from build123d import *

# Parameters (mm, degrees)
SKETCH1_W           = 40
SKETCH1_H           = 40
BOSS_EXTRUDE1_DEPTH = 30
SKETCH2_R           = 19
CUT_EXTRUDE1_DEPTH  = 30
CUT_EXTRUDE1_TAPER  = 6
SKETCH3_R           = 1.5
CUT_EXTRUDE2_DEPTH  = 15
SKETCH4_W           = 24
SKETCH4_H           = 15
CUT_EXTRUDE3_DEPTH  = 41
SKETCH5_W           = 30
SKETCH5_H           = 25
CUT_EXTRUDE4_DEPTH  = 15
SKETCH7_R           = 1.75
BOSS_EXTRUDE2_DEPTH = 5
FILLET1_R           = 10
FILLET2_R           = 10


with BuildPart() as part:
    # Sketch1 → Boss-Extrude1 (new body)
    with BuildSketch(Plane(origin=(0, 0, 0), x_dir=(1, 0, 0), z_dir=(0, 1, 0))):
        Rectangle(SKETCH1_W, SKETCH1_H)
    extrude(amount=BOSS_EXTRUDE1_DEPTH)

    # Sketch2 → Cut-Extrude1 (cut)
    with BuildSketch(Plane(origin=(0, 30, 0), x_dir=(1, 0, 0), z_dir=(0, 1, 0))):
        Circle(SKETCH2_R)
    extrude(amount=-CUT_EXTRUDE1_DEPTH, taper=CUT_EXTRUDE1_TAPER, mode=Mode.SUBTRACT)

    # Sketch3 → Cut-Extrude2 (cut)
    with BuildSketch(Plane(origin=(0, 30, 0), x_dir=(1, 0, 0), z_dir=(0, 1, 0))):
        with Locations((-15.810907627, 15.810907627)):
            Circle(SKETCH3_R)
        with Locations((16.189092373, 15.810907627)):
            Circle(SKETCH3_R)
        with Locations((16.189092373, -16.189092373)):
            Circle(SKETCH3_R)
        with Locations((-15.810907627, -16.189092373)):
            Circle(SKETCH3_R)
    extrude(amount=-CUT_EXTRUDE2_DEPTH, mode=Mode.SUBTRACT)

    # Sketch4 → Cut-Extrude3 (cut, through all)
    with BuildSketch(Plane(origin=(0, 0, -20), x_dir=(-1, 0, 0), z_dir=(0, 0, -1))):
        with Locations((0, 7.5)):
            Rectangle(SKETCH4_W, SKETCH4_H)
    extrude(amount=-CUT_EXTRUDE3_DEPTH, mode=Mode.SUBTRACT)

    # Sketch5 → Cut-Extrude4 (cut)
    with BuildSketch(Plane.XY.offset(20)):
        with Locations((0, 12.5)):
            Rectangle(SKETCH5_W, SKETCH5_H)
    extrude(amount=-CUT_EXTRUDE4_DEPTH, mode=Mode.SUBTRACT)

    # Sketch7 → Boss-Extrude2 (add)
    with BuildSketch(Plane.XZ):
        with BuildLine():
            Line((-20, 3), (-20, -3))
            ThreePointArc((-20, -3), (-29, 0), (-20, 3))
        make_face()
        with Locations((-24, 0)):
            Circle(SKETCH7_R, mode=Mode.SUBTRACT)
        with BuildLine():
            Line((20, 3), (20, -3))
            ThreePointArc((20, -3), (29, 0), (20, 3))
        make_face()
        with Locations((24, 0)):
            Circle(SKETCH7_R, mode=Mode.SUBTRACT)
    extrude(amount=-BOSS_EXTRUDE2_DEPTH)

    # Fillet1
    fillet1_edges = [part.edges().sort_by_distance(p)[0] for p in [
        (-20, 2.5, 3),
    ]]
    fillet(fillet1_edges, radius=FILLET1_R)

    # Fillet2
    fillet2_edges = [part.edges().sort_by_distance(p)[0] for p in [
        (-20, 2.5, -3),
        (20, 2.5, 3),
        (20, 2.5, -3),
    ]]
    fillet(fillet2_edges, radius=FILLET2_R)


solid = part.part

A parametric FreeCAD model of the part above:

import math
import FreeCAD as App
import Part
import Sketcher

V = App.Vector


def edges_at(feature, points):
    """Names of the edges that pass closest to the given points."""
    edges = feature.Shape.Edges
    near = lambda p: min(range(len(edges)), key=lambda i: edges[i].distToShape(Part.Vertex(*p))[0])
    return sorted({f"Edge{near(p) + 1}" for p in points})


def add_polygon(sketch, points):
    """Adds a closed chain of lines whose ends are joined by coincident constraints."""
    first, n = sketch.GeometryCount, len(points)
    for a, b in zip(points, points[1:] + points[:1]):
        sketch.addGeometry(Part.LineSegment(App.Vector(*a, 0), App.Vector(*b, 0)), False)
    for i in range(n):
        sketch.addConstraint(Sketcher.Constraint("Coincident", first + i, 2, first + (i + 1) % n, 1))

doc = App.newDocument("Part")
body = doc.addObject("PartDesign::Body", "Body")

# Sketch on XZ plane
sketch1 = body.newObject("Sketcher::SketchObject", "Sketch")
sketch1.AttachmentSupport = (doc.getObject("XZ_Plane"), [""])
sketch1.MapMode = "FlatFace"
add_polygon(sketch1, [(-20, -20), (-20, 20), (20, 20), (20, -20)])  # lines 0-3
sketch1.addConstraint(Sketcher.Constraint("Vertical", 0))
sketch1.addConstraint(Sketcher.Constraint("Horizontal", 1))
sketch1.addConstraint(Sketcher.Constraint("Vertical", 2))
sketch1.addConstraint(Sketcher.Constraint("Horizontal", 3))
sketch1.addConstraint(Sketcher.Constraint("Symmetric", 0, 2, 2, 2, -1, 1))
sketch1.addConstraint(Sketcher.Constraint("Equal", 3, 0))
sketch1.addConstraint(Sketcher.Constraint("DistanceX", 1, 1, 1, 2, 40.0))
pad1 = body.newObject("PartDesign::Pad", "Pad")
pad1.Profile = sketch1
pad1.Length = 30
pad1.Reversed = True

# Sketch on XZ plane
sketch2 = body.newObject("Sketcher::SketchObject", "Sketch001")
sketch2.AttachmentSupport = (doc.getObject("XZ_Plane"), [""])
sketch2.MapMode = "FlatFace"
sketch2.AttachmentOffset = App.Placement(V(0, 0, -30), App.Rotation())
sketch2.addGeometry(Part.Circle(V(0, 0, 0), V(0, 0, 1), 19), False)
sketch2.addConstraint(Sketcher.Constraint("Coincident", 0, 3, -1, 1))
sketch2.addConstraint(Sketcher.Constraint("Diameter", 0, 38.0))
pocket1 = body.newObject("PartDesign::Pocket", "Pocket")
pocket1.Profile = sketch2
pocket1.Length = 30
pocket1.Reversed = True
pocket1.TaperAngle = -6

# Sketch on XZ plane
sketch3 = body.newObject("Sketcher::SketchObject", "Sketch002")
sketch3.AttachmentSupport = (doc.getObject("XZ_Plane"), [""])
sketch3.MapMode = "FlatFace"
sketch3.AttachmentOffset = App.Placement(V(0, 0, -30), App.Rotation())
sketch3.addGeometry(Part.Circle(V(-15.8, -15.8, 0), V(0, 0, 1), 1.5), False)
sketch3.addGeometry(Part.Circle(V(16.2, -15.8, 0), V(0, 0, 1), 1.5), False)
sketch3.addGeometry(Part.Circle(V(16.2, 16.2, 0), V(0, 0, 1), 1.5), False)
sketch3.addGeometry(Part.Circle(V(-15.8, 16.2, 0), V(0, 0, 1), 1.5), False)
sketch3.addConstraint(Sketcher.Constraint("Equal", 0, 1))
sketch3.addConstraint(Sketcher.Constraint("Equal", 1, 2))
sketch3.addConstraint(Sketcher.Constraint("Equal", 2, 3))
sketch3.addConstraint(Sketcher.Constraint("Horizontal", 0, 3, 1, 3))
sketch3.addConstraint(Sketcher.Constraint("Horizontal", 2, 3, 3, 3))
sketch3.addConstraint(Sketcher.Constraint("Vertical", 1, 3, 2, 3))
sketch3.addConstraint(Sketcher.Constraint("Vertical", 0, 3, 3, 3))
sketch3.addConstraint(Sketcher.Constraint("Diameter", 0, 3.0))
sketch3.addConstraint(Sketcher.Constraint("DistanceX", 0, 3, 1, 3, 32.0))
sketch3.addConstraint(Sketcher.Constraint("DistanceY", 1, 3, 2, 3, 32.0))
sketch3.addConstraint(Sketcher.Constraint("DistanceX", 0, 3, -1, 1, 15.810908))
sketch3.addConstraint(Sketcher.Constraint("DistanceY", 0, 3, -1, 1, 15.810908))
pocket2 = body.newObject("PartDesign::Pocket", "Pocket001")
pocket2.Profile = sketch3
pocket2.Length = 15
pocket2.Reversed = True

# Sketch on XY plane
sketch4 = body.newObject("Sketcher::SketchObject", "Sketch003")
sketch4.AttachmentSupport = (doc.getObject("XY_Plane"), [""])
sketch4.MapMode = "FlatFace"
sketch4.AttachmentOffset = App.Placement(V(0, 0, -20), App.Rotation())
add_polygon(sketch4, [(12, 15), (12, 0), (-12, 0), (-12, 15)])  # lines 0-3
sketch4.addConstraint(Sketcher.Constraint("Vertical", 0))
sketch4.addConstraint(Sketcher.Constraint("Horizontal", 1))
sketch4.addConstraint(Sketcher.Constraint("Vertical", 2))
sketch4.addConstraint(Sketcher.Constraint("Horizontal", 3))
sketch4.addConstraint(Sketcher.Constraint("Symmetric", 0, 2, 1, 2, -1, 1))
sketch4.addConstraint(Sketcher.Constraint("DistanceX", 1, 2, 1, 1, 24.0))
sketch4.addConstraint(Sketcher.Constraint("DistanceY", 0, 2, 0, 1, 15.0))
pocket3 = body.newObject("PartDesign::Pocket", "Pocket002")
pocket3.Profile = sketch4
pocket3.Type = "ThroughAll"
pocket3.Reversed = True

# Sketch on XY plane
sketch5 = body.newObject("Sketcher::SketchObject", "Sketch004")
sketch5.AttachmentSupport = (doc.getObject("XY_Plane"), [""])
sketch5.MapMode = "FlatFace"
sketch5.AttachmentOffset = App.Placement(V(0, 0, 20), App.Rotation())
add_polygon(sketch5, [(-15, 25), (-15, 0), (15, 0), (15, 25)])  # lines 0-3
sketch5.addConstraint(Sketcher.Constraint("Vertical", 0))
sketch5.addConstraint(Sketcher.Constraint("Horizontal", 1))
sketch5.addConstraint(Sketcher.Constraint("Vertical", 2))
sketch5.addConstraint(Sketcher.Constraint("Horizontal", 3))
sketch5.addConstraint(Sketcher.Constraint("Symmetric", 0, 2, 1, 2, -1, 1))
sketch5.addConstraint(Sketcher.Constraint("DistanceX", 1, 1, 1, 2, 30.0))
sketch5.addConstraint(Sketcher.Constraint("DistanceY", 0, 2, 0, 1, 25.0))
pocket4 = body.newObject("PartDesign::Pocket", "Pocket003")
pocket4.Profile = sketch5
pocket4.Length = 15

# Sketch on XZ plane
sketch6 = body.newObject("Sketcher::SketchObject", "Sketch005")
sketch6.AttachmentSupport = (doc.getObject("XZ_Plane"), [""])
sketch6.MapMode = "FlatFace"
sketch6.addGeometry(Part.LineSegment(V(-20, -3, 0), V(-20, 3, 0)), False)
sketch6.addGeometry(Part.ArcOfCircle(Part.Circle(V(-24, 0, 0), V(0, 0, 1), 5), math.radians(37), math.radians(323)), False)
sketch6.addGeometry(Part.Circle(V(-24, 0, 0), V(0, 0, 1), 1.8), False)
sketch6.addGeometry(Part.LineSegment(V(20, 3, 0), V(20, -3, 0)), False)
sketch6.addGeometry(Part.ArcOfCircle(Part.Circle(V(24, 0, 0), V(0, 0, 1), 5), math.radians(-143), math.radians(143)), False)
sketch6.addGeometry(Part.Circle(V(24, 0, 0), V(0, 0, 1), 1.8), False)
sketch6.addConstraint(Sketcher.Constraint("Coincident", 0, 1, 1, 2))
sketch6.addConstraint(Sketcher.Constraint("Coincident", 1, 1, 0, 2))
sketch6.addConstraint(Sketcher.Constraint("Coincident", 3, 1, 4, 2))
sketch6.addConstraint(Sketcher.Constraint("Coincident", 4, 1, 3, 2))
sketch6.addConstraint(Sketcher.Constraint("Vertical", 0))
sketch6.addConstraint(Sketcher.Constraint("Vertical", 3))
sketch6.addConstraint(Sketcher.Constraint("Coincident", 2, 3, 1, 3))
sketch6.addConstraint(Sketcher.Constraint("Coincident", 5, 3, 4, 3))
sketch6.addConstraint(Sketcher.Constraint("Equal", 1, 4))
sketch6.addConstraint(Sketcher.Constraint("Equal", 2, 5))
sketch6.addConstraint(Sketcher.Constraint("Symmetric", 1, 3, 4, 3, -1, 1))
sketch6.addConstraint(Sketcher.Constraint("Symmetric", 1, 1, 3, 1, -2))
sketch6.addConstraint(Sketcher.Constraint("Radius", 1, 5.0))
sketch6.addConstraint(Sketcher.Constraint("Diameter", 2, 3.5))
sketch6.addConstraint(Sketcher.Constraint("DistanceY", 0, 1, 0, 2, 6.0))
sketch6.addConstraint(Sketcher.Constraint("DistanceX", 1, 3, -1, 1, 24.0))
pad2 = body.newObject("PartDesign::Pad", "Pad001")
pad2.Profile = sketch6
pad2.Length = 5
pad2.Reversed = True
doc.recompute()

fillet = body.newObject("PartDesign::Fillet", "Fillet")
fillet.Base = (pad2, edges_at(pad2, [(-20, 2.5, 3)]))
fillet.Radius = 10
doc.recompute()

fillet2 = body.newObject("PartDesign::Fillet", "Fillet001")
fillet2.Base = (fillet, edges_at(fillet, [(-20, 2.5, -3), (20, 2.5, 3), (20, 2.5, -3)]))
fillet2.Radius = 10

doc.recompute()
